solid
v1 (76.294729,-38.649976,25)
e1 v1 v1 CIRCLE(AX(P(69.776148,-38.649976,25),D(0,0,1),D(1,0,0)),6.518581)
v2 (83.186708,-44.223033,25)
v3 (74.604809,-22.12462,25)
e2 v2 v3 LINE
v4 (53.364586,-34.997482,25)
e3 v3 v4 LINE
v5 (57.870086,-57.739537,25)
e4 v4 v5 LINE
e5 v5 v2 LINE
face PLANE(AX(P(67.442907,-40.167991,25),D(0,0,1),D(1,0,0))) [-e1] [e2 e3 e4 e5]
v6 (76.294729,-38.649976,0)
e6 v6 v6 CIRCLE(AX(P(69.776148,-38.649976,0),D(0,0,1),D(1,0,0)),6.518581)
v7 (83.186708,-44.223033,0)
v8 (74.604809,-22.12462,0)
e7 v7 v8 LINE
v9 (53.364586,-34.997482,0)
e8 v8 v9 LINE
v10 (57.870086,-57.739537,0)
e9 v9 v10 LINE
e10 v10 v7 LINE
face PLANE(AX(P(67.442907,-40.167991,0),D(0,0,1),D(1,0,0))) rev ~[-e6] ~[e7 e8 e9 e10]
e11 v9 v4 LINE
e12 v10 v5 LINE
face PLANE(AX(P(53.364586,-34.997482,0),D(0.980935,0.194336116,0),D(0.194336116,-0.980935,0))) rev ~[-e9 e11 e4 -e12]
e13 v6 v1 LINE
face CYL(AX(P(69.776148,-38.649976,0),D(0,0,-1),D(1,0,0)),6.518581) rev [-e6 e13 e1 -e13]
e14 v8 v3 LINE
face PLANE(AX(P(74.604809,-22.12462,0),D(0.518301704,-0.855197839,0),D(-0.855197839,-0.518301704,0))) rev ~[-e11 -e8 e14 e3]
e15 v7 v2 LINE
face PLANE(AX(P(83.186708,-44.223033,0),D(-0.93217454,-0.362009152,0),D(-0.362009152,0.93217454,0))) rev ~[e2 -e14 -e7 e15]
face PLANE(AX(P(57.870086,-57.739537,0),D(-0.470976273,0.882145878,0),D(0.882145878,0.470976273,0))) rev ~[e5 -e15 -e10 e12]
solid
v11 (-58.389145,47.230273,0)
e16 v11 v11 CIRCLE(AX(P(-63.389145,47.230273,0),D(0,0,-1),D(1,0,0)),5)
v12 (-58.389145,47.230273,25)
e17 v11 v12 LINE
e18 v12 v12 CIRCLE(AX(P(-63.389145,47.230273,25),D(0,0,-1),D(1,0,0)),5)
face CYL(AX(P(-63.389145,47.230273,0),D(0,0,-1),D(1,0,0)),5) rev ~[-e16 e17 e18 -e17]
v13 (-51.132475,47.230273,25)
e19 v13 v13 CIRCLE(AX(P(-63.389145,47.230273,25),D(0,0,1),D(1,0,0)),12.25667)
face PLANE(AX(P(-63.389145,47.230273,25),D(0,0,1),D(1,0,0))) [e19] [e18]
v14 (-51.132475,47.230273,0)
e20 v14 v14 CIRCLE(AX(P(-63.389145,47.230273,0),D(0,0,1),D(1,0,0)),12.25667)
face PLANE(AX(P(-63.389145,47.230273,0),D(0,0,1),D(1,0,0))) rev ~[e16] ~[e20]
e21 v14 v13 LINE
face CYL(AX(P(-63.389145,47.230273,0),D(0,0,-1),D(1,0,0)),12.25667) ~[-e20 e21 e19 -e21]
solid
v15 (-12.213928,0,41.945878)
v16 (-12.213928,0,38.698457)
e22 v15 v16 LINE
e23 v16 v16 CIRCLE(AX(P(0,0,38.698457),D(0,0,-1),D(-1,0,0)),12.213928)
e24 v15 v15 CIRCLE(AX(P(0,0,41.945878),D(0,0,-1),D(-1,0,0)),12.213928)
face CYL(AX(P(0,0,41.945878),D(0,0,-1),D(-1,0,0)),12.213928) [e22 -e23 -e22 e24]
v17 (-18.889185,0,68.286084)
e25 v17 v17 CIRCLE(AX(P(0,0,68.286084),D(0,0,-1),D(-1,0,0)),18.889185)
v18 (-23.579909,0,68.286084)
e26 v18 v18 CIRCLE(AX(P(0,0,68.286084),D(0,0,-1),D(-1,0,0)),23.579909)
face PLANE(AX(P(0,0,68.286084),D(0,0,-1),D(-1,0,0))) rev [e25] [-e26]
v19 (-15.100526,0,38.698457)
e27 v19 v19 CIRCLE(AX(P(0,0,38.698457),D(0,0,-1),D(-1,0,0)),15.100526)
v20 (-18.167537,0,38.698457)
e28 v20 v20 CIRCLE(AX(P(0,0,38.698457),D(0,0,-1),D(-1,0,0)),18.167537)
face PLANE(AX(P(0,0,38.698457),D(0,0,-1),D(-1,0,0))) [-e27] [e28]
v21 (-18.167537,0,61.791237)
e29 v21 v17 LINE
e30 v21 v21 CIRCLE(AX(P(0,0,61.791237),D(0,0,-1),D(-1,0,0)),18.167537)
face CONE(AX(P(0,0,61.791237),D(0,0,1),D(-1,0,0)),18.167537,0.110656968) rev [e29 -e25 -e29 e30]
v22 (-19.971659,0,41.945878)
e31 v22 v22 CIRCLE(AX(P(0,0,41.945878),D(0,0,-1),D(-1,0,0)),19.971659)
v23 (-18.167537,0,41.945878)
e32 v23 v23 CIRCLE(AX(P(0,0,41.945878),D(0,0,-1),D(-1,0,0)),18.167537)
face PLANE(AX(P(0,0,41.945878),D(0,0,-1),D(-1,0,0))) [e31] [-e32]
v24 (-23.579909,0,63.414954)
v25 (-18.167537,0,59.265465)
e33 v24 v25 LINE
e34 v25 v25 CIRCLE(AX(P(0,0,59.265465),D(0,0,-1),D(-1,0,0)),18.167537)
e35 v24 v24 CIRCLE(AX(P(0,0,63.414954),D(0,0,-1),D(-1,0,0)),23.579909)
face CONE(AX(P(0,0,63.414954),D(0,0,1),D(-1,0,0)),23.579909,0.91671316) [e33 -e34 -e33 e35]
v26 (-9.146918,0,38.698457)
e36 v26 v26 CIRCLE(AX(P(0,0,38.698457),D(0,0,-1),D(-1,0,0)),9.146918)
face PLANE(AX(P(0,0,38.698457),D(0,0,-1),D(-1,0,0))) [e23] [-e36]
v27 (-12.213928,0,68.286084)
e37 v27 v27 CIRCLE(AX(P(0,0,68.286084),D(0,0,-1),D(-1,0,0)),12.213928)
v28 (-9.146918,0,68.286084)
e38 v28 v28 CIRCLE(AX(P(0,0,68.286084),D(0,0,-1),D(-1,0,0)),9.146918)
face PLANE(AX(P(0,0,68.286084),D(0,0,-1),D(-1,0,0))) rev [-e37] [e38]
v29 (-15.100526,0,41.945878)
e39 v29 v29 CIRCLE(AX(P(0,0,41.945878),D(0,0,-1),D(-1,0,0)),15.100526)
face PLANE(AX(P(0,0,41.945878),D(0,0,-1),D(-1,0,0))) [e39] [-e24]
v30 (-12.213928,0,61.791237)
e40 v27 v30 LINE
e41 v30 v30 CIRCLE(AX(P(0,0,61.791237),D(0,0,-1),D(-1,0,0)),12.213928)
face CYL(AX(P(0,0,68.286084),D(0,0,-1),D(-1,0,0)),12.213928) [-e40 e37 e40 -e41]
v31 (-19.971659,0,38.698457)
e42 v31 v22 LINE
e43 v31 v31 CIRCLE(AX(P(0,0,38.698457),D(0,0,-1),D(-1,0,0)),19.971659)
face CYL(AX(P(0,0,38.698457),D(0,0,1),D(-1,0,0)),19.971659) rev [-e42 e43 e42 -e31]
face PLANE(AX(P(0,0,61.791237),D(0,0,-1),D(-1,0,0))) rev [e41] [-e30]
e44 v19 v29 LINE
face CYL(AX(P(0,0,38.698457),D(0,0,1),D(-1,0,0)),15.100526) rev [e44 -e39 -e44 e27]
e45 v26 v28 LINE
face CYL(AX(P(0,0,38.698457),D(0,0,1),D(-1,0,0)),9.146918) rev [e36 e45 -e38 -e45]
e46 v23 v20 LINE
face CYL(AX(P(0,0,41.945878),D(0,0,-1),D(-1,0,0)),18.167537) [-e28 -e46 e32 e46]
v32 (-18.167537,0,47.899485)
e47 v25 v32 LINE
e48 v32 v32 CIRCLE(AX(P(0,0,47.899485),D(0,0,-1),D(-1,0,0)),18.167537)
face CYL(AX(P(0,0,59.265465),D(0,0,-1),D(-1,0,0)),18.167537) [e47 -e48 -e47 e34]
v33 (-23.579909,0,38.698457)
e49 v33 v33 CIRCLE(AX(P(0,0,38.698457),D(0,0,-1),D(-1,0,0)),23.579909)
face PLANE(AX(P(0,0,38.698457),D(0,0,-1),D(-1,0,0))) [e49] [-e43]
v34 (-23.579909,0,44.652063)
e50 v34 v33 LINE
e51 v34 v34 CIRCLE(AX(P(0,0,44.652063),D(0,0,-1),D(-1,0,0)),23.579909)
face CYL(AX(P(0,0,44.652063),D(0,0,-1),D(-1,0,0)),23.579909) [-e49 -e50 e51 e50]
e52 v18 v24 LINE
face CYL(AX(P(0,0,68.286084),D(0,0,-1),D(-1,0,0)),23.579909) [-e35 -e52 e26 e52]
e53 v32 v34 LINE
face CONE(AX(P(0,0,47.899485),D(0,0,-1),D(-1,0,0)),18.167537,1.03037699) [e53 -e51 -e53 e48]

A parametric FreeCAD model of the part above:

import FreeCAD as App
import Part
import Sketcher
from FreeCAD import Vector
Q = App.Units.Quantity

doc = App.newDocument("Part")
body = doc.addObject("PartDesign::Body", "Body")

sketch1 = doc.addObject("Sketcher::SketchObject", "Sketch")
body.addObject(sketch1)
sketch1.AttachmentSupport = (doc.XY_Plane, [""])
sketch1.MapMode = "FlatFace"
sketch1.addGeometry(Part.Circle(Vector(-63, 47, 0), Vector(0, 0, 1), 12), False)
sketch1.addConstraint([
    Sketcher.Constraint("Diameter", 0, Q("24.51334 mm")),
    Sketcher.Constraint("DistanceX", 0, 3, -1, 1, Q("63.389145 mm")),
    Sketcher.Constraint("DistanceY", -1, 1, 0, 3, Q("47.230273 mm")),
])
pad1 = doc.addObject("PartDesign::Pad", "Pad")
body.addObject(pad1)
pad1.Profile = sketch1
pad1.Length = 25

sketch2 = doc.addObject("Sketcher::SketchObject", "Sketch001")
body.addObject(sketch2)
sketch2.AttachmentSupport = (doc.XY_Plane, [""])
sketch2.MapMode = "FlatFace"
sketch2.addGeometry(Part.Circle(Vector(-63, 47, 0), Vector(0, 0, 1), 5), False)
sketch2.addConstraint([
    Sketcher.Constraint("Diameter", 0, Q("10 mm")),
    Sketcher.Constraint("DistanceX", 0, 3, -1, 1, Q("63.389145 mm")),
    Sketcher.Constraint("DistanceY", -1, 1, 0, 3, Q("47.230273 mm")),
])
pocket1 = doc.addObject("PartDesign::Pocket", "Pocket")
body.addObject(pocket1)
pocket1.Profile = sketch2
pocket1.Type = "ThroughAll"
pocket1.Reversed = True
body2 = doc.addObject("PartDesign::Body", "Body001")

sketch3 = doc.addObject("Sketcher::SketchObject", "Sketch002")
body2.addObject(sketch3)
sketch3.AttachmentSupport = (doc.getObject("XZ_Plane001"), [""])
sketch3.MapMode = "FlatFace"
sketch3.addGeometry([
    Part.LineSegment(Vector(-18.2, 61.8, 0), Vector(-18.9, 68.3, 0)),
    Part.LineSegment(Vector(-18.9, 68.3, 0), Vector(-23.6, 68.3, 0)),
    Part.LineSegment(Vector(-23.6, 68.3, 0), Vector(-23.6, 63.4, 0)),
    Part.LineSegment(Vector(-23.6, 63.4, 0), Vector(-18.2, 59.3, 0)),
    Part.LineSegment(Vector(-18.2, 59.3, 0), Vector(-18.2, 47.9, 0)),
    Part.LineSegment(Vector(-18.2, 47.9, 0), Vector(-23.6, 44.7, 0)),
    Part.LineSegment(Vector(-23.6, 44.7, 0), Vector(-23.6, 38.7, 0)),
    Part.LineSegment(Vector(-23.6, 38.7, 0), Vector(-20, 38.7, 0)),
    Part.LineSegment(Vector(-20, 38.7, 0), Vector(-20, 41.9, 0)),
    Part.LineSegment(Vector(-20, 41.9, 0), Vector(-18.2, 41.9, 0)),
    Part.LineSegment(Vector(-18.2, 41.9, 0), Vector(-18.2, 38.7, 0)),
    Part.LineSegment(Vector(-18.2, 38.7, 0), Vector(-15.1, 38.7, 0)),
    Part.LineSegment(Vector(-15.1, 38.7, 0), Vector(-15.1, 41.9, 0)),
    Part.LineSegment(Vector(-15.1, 41.9, 0), Vector(-12.2, 41.9, 0)),
    Part.LineSegment(Vector(-12.2, 41.9, 0), Vector(-12.2, 38.7, 0)),
    Part.LineSegment(Vector(-12.2, 38.7, 0), Vector(-9.1, 38.7, 0)),
    Part.LineSegment(Vector(-9.1, 38.7, 0), Vector(-9.1, 68.3, 0)),
    Part.LineSegment(Vector(-9.1, 68.3, 0), Vector(-12.2, 68.3, 0)),
    Part.LineSegment(Vector(-12.2, 68.3, 0), Vector(-12.2, 61.8, 0)),
    Part.LineSegment(Vector(-12.2, 61.8, 0), Vector(-18.2, 61.8, 0)),
], False)
sketch3.addConstraint([
    Sketcher.Constraint("Coincident", 0, 2, 1, 1),
    Sketcher.Constraint("Coincident", 1, 2, 2, 1),
    Sketcher.Constraint("Coincident", 2, 2, 3, 1),
    Sketcher.Constraint("Coincident", 3, 2, 4, 1),
    Sketcher.Constraint("Coincident", 4, 2, 5, 1),
    Sketcher.Constraint("Coincident", 5, 2, 6, 1),
    Sketcher.Constraint("Coincident", 6, 2, 7, 1),
    Sketcher.Constraint("Coincident", 7, 2, 8, 1),
    Sketcher.Constraint("Coincident", 8, 2, 9, 1),
    Sketcher.Constraint("Coincident", 9, 2, 10, 1),
    Sketcher.Constraint("Coincident", 10, 2, 11, 1),
    Sketcher.Constraint("Coincident", 11, 2, 12, 1),
    Sketcher.Constraint("Coincident", 12, 2, 13, 1),
    Sketcher.Constraint("Coincident", 13, 2, 14, 1),
    Sketcher.Constraint("Coincident", 14, 2, 15, 1),
    Sketcher.Constraint("Coincident", 15, 2, 16, 1),
    Sketcher.Constraint("Coincident", 16, 2, 17, 1),
    Sketcher.Constraint("Coincident", 17, 2, 18, 1),
    Sketcher.Constraint("Coincident", 18, 2, 19, 1),
    Sketcher.Constraint("Coincident", 19, 2, 0, 1),
    Sketcher.Constraint("Horizontal", 1),
    Sketcher.Constraint("Vertical", 2),
    Sketcher.Constraint("Vertical", 4),
    Sketcher.Constraint("Vertical", 6),
    Sketcher.Constraint("Horizontal", 7),
    Sketcher.Constraint("Vertical", 8),
    Sketcher.Constraint("Horizontal", 9),
    Sketcher.Constraint("Vertical", 10),
    Sketcher.Constraint("Horizontal", 11),
    Sketcher.Constraint("Vertical", 12),
    Sketcher.Constraint("Horizontal", 13),
    Sketcher.Constraint("Vertical", 14),
    Sketcher.Constraint("Horizontal", 15),
    Sketcher.Constraint("Vertical", 16),
    Sketcher.Constraint("Horizontal", 17),
    Sketcher.Constraint("Vertical", 18),
    Sketcher.Constraint("Horizontal", 19),
    Sketcher.Constraint("Horizontal", 7, 2, 10, 2),
    Sketcher.Constraint("Horizontal", 9, 2, 12, 2),
    Sketcher.Constraint("Horizontal", 11, 2, 14, 2),
    Sketcher.Constraint("Horizontal", 1, 2, 16, 2),
    Sketcher.Constraint("Vertical", 2, 2, 5, 2),
    Sketcher.Constraint("Vertical", 4, 2, 9, 2),
    Sketcher.Constraint("Vertical", 14, 2, 17, 2),
    Sketcher.Constraint("Vertical", 10, 2, 19, 2),
    Sketcher.Constraint("Equal", 11, 15),
    Sketcher.Constraint("DistanceX", 13, 1, 13, 2, Q("2.886598 mm")),
    Sketcher.Constraint("DistanceX", 7, 1, 7, 2, Q("3.60825 mm")),
    Sketcher.Constraint("DistanceX", 9, 1, 9, 2, Q("1.804122 mm")),
    Sketcher.Constraint("DistanceX", 11, 1, 11, 2, Q("3.067011 mm")),
    Sketcher.Constraint("DistanceY", 2, 2, 2, 1, Q("4.87113 mm")),
    Sketcher.Constraint("DistanceY", 4, 2, 4, 1, Q("11.36598 mm")),
    Sketcher.Constraint("DistanceY", 8, 1, 8, 2, Q("3.247421 mm")),
    Sketcher.Constraint("DistanceY", 4, 2, 0, 2, Q("20.386599 mm")),
    Sketcher.Constraint("DistanceX", 1, 2, 1, 1, Q("4.690724 mm")),
    Sketcher.Constraint("DistanceY", 6, 2, 6, 1, Q("5.953606 mm")),
    Sketcher.Constraint("DistanceY", 16, 1, 16, 2, Q("29.587627 mm")),
    Sketcher.Constraint("DistanceY", 18, 2, 18, 1, Q("6.494847 mm")),
    Sketcher.Constraint("DistanceX", 1, 2, -1, 1, Q("23.579909 mm")),
    Sketcher.Constraint("DistanceY", -1, 1, 0, 2, Q("68.286084 mm")),
])
revolution = doc.addObject("PartDesign::Revolution", "Revolution")
body2.addObject(revolution)
revolution.Profile = sketch3
revolution.ReferenceAxis = (sketch3, ["V_Axis"])
revolution.Angle = 360
body3 = doc.addObject("PartDesign::Body", "Body002")

sketch4 = doc.addObject("Sketcher::SketchObject", "Sketch003")
body3.addObject(sketch4)
sketch4.AttachmentSupport = (doc.getObject("XY_Plane002"), [""])
sketch4.MapMode = "FlatFace"
sketch4.addGeometry([
    Part.LineSegment(Vector(83, -44, 0), Vector(75, -22, 0)),
    Part.LineSegment(Vector(75, -22, 0), Vector(53, -35, 0)),
    Part.LineSegment(Vector(53, -35, 0), Vector(58, -58, 0)),
    Part.LineSegment(Vector(58, -58, 0), Vector(83, -44, 0)),
    Part.Circle(Vector(70, -39, 0), Vector(0, 0, 1), 7),
], False)
sketch4.addConstraint([
    Sketcher.Constraint("Coincident", 0, 2, 1, 1),
    Sketcher.Constraint("Coincident", 1, 2, 2, 1),
    Sketcher.Constraint("Coincident", 2, 2, 3, 1),
    Sketcher.Constraint("Coincident", 3, 2, 0, 1),
    Sketcher.Constraint("Diameter", 4, Q("13.037162 mm")),
    Sketcher.Constraint("DistanceX", 1, 2, 2, 2, Q("4.5055 mm")),
    Sketcher.Constraint("DistanceX", 0, 2, 3, 2, Q("8.581899 mm")),
    Sketcher.Constraint("Distance", 1, Q("24.836619 mm")),
    Sketcher.Constraint("Distance", 2, Q("23.184059 mm")),
    Sketcher.Constraint("DistanceX", -1, 1, 4, 3, Q("69.776148 mm")),
    Sketcher.Constraint("DistanceX", -1, 1, 0, 2, Q("74.604809 mm")),
    Sketcher.Constraint("DistanceY", 0, 2, -1, 1, Q("22.12462 mm")),
    Sketcher.Constraint("DistanceY", 1, 2, -1, 1, Q("34.997482 mm")),
    Sketcher.Constraint("DistanceY", 2, 2, 4, 3, Q("19.089561 mm")),
    Sketcher.Constraint("DistanceY", 3, 2, 1, 2, Q("9.225551 mm")),
])
pad2 = doc.addObject("PartDesign::Pad", "Pad001")
body3.addObject(pad2)
pad2.Profile = sketch4
pad2.Length = 25

doc.recompute()
